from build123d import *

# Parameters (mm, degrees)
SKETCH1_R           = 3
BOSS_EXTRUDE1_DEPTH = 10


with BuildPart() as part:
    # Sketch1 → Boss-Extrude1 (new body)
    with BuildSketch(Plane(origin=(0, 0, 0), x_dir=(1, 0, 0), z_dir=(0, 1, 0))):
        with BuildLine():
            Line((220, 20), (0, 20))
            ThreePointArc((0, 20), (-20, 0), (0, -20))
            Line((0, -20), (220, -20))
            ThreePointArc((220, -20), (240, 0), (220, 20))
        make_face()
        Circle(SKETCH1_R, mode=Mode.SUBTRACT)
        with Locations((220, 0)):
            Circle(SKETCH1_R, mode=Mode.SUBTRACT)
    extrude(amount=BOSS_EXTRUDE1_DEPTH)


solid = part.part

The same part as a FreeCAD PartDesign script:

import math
import FreeCAD as App
import Part
import Sketcher

V = App.Vector
Q = App.Units.Quantity

doc = App.newDocument("Part")
body = doc.addObject("PartDesign::Body", "Body")

sketch1 = body.newObject("Sketcher::SketchObject", "Sketch")
sketch1.AttachmentSupport = (doc.getObject("XZ_Plane"), [""])
sketch1.MapMode = "FlatFace"
sketch1.addGeometry([
    Part.LineSegment(V(220, -20, 0), V(0, -20, 0)),
    Part.ArcOfCircle(Part.Circle(V(0, 0, 0), V(0, 0, 1), 20), math.radians(90), math.radians(270)),
    Part.LineSegment(V(0, 20, 0), V(220, 20, 0)),
    Part.ArcOfCircle(Part.Circle(V(220, 0, 0), V(0, 0, 1), 20), math.radians(-90), math.radians(90)),
    Part.Circle(V(0, 0, 0), V(0, 0, 1), 3),
    Part.Circle(V(220, 0, 0), V(0, 0, 1), 3),
], False)
sketch1.addConstraint([
    Sketcher.Constraint("Tangent", 0, 2, 1, 2),
    Sketcher.Constraint("Tangent", 1, 1, 2, 1),
    Sketcher.Constraint("Tangent", 2, 2, 3, 2),
    Sketcher.Constraint("Tangent", 3, 1, 0, 1),
    Sketcher.Constraint("Horizontal", 0),
    Sketcher.Constraint("Horizontal", 2),
    Sketcher.Constraint("Coincident", 1, 3, -1, 1),
    Sketcher.Constraint("Coincident", 4, 3, -1, 1),
    Sketcher.Constraint("Coincident", 5, 3, 3, 3),
    Sketcher.Constraint("Equal", 4, 5),
    Sketcher.Constraint("Diameter", 4, Q("6 mm")),
    Sketcher.Constraint("Radius", 1, Q("20 mm")),
    Sketcher.Constraint("DistanceX", 0, 2, 0, 1, Q("220 mm")),
])
pad1 = body.newObject("PartDesign::Pad", "Pad")
pad1.Profile = sketch1
pad1.Length = 10
pad1.Reversed = True

doc.recompute()
